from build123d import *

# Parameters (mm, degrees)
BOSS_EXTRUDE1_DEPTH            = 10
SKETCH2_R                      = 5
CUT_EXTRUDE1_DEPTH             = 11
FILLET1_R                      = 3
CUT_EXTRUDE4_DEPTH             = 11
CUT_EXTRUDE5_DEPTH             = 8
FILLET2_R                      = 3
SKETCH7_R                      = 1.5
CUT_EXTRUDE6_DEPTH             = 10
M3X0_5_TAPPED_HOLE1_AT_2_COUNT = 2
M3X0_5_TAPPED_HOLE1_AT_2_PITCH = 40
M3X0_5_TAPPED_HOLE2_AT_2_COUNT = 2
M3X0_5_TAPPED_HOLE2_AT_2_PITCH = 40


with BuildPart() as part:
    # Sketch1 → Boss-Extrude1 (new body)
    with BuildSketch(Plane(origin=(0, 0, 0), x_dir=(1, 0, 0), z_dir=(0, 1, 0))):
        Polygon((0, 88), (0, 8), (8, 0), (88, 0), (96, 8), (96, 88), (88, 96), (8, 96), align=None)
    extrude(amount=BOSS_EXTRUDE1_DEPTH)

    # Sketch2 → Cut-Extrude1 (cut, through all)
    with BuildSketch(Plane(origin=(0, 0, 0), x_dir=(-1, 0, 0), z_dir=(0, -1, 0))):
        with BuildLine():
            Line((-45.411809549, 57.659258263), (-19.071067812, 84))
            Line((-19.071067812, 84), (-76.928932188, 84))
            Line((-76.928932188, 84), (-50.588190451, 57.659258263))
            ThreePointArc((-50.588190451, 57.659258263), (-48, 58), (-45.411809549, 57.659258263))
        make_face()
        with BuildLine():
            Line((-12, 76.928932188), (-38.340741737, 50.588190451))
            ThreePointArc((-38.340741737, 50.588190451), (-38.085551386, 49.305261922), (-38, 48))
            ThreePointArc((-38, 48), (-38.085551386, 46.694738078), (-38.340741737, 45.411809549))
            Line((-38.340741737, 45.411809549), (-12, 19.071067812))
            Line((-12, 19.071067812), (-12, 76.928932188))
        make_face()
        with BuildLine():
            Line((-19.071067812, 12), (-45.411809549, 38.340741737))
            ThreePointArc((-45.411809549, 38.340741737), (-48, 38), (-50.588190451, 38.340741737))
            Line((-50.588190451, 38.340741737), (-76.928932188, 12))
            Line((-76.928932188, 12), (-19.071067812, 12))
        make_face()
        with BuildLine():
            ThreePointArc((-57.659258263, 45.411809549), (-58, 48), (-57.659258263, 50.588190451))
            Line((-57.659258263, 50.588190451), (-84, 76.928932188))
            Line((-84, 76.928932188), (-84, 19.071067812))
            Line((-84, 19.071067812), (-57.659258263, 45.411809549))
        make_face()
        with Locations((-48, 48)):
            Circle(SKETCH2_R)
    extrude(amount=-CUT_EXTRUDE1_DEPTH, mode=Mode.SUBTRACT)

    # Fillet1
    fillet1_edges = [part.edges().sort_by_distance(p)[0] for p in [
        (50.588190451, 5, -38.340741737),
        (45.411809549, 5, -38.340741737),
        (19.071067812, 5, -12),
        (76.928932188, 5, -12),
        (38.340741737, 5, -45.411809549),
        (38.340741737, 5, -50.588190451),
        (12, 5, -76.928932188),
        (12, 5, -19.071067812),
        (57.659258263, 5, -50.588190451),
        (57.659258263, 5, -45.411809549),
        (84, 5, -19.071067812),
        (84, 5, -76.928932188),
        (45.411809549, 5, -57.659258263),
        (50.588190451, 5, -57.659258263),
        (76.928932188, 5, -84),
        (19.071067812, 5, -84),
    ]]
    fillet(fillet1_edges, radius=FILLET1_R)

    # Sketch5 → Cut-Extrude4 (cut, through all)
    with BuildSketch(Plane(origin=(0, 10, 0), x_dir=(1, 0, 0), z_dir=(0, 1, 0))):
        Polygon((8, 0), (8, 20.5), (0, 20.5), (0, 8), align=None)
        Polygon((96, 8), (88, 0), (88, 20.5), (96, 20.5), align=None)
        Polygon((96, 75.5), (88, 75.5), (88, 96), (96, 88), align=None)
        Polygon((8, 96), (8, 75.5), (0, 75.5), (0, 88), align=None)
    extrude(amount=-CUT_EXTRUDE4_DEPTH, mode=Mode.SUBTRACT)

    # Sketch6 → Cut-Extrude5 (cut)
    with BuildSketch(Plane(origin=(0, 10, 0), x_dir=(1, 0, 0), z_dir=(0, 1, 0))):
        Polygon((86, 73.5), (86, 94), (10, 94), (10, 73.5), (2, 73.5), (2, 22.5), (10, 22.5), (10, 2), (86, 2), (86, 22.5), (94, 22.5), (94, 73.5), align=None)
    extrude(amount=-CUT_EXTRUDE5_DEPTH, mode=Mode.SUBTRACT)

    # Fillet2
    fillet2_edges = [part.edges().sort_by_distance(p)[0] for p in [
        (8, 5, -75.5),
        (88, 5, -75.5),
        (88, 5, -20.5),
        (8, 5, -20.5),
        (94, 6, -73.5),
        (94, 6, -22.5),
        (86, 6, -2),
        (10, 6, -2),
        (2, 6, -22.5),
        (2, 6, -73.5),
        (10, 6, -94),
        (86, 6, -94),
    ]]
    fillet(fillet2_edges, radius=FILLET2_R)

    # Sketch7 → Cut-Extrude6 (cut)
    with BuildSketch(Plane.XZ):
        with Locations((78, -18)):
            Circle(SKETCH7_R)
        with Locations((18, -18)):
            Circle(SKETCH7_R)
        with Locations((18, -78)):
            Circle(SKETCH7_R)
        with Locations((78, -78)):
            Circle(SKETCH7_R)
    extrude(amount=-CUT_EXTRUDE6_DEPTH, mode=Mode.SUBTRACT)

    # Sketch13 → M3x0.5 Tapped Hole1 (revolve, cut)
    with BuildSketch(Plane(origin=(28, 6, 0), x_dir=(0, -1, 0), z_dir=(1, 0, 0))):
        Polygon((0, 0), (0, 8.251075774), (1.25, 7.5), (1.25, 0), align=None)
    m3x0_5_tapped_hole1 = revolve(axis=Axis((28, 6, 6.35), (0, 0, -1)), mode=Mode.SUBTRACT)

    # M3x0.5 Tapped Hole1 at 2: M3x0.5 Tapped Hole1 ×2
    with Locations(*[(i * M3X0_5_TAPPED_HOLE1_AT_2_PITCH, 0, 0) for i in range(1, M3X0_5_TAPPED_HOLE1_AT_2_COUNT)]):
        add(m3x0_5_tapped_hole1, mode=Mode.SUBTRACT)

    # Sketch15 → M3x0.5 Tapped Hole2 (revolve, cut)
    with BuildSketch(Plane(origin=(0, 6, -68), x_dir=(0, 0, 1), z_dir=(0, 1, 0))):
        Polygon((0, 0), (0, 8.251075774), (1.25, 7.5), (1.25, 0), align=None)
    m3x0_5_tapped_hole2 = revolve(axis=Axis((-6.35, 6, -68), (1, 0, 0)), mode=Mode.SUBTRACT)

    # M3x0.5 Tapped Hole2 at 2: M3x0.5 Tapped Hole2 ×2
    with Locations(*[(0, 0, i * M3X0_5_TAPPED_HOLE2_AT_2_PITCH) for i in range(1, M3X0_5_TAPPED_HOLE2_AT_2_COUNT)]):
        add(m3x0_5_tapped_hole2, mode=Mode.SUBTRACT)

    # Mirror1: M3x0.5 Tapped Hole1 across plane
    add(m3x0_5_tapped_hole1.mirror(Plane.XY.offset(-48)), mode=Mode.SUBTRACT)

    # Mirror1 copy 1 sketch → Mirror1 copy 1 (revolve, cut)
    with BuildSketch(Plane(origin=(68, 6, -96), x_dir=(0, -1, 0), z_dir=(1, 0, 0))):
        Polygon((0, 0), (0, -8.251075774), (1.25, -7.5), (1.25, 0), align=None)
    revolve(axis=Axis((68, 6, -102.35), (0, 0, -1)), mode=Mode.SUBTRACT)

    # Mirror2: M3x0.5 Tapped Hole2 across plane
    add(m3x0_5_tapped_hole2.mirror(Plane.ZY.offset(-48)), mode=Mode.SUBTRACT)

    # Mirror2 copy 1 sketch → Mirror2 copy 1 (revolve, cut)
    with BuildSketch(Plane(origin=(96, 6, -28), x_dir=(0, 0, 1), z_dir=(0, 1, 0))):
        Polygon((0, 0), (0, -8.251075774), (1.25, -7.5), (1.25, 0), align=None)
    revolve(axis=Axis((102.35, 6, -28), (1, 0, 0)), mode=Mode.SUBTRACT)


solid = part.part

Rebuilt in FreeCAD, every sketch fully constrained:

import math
import FreeCAD as App
import Part
import Sketcher

V = App.Vector
Q = App.Units.Quantity


def edges_at(feature, points):
    """Names of the edges that pass closest to the given points."""
    edges = feature.Shape.Edges
    near = lambda p: min(range(len(edges)), key=lambda i: edges[i].distToShape(Part.Vertex(*p))[0])
    return sorted({f"Edge{near(p) + 1}" for p in points})

doc = App.newDocument("Part")
params = doc.addObject("Spreadsheet::Sheet", "Params")
for row, (alias, value) in enumerate([
    ("sketch1_width", "80 mm"),
    ("pad1_length", "10 mm"),
    ("sketch2_diameter", "10 mm"),
    ("sketch2_radius", "10 mm"),
    ("fillet_radius", "3 mm"),
    ("sketch3_width", "8 mm"),
    ("sketch3_height", "20.5 mm"),
    ("sketch4_width", "76 mm"),
    ("sketch4_width2", "8 mm"),
    ("sketch4_height", "51 mm"),
    ("sketch4_height2", "20.5 mm"),
    ("pocket3_length", "8 mm"),
    ("fillet2_radius", "3 mm"),
    ("sketch5_diameter", "3 mm"),
    ("pocket4_length", "10 mm"),
    ("sketch6_height", "7.5 mm"),
    ("sketch6_width", "1.25 mm"),
    ("groove_angle", "360 deg"),
    ("linearpattern_pitch", "40 mm"),
    ("sketch7_width", "7.5 mm"),
    ("sketch7_height", "1.25 mm"),
    ("groove2_angle", "360 deg"),
    ("linearpattern2_pitch", "40 mm"),
    ("sketch8_height", "7.5 mm"),
    ("sketch8_width", "1.25 mm"),
    ("groove3_angle", "360 deg"),
    ("sketch9_width", "7.5 mm"),
    ("sketch9_height", "1.25 mm"),
    ("groove4_angle", "360 deg"),
], start=1):
    params.set(f"A{row}", alias)
    params.set(f"B{row}", "=" + value)
    params.setAlias(f"B{row}", alias)

body = doc.addObject("PartDesign::Body", "Body")

# Sketch on XZ plane
sketch1 = doc.addObject("Sketcher::SketchObject", "Sketch")
body.addObject(sketch1)
sketch1.AttachmentSupport = (doc.XZ_Plane, [""])
sketch1.MapMode = "FlatFace"
sketch1.addGeometry([
    Part.LineSegment(V(0, -88, 0), V(0, -8, 0)),  # 0
    Part.LineSegment(V(0, -8, 0), V(8, 0, 0)),  # 1
    Part.LineSegment(V(8, 0, 0), V(88, 0, 0)),  # 2
    Part.LineSegment(V(88, 0, 0), V(96, -8, 0)),  # 3
    Part.LineSegment(V(96, -8, 0), V(96, -88, 0)),  # 4
    Part.LineSegment(V(96, -88, 0), V(88, -96, 0)),  # 5
    Part.LineSegment(V(88, -96, 0), V(8, -96, 0)),  # 6
    Part.LineSegment(V(8, -96, 0), V(0, -88, 0)),  # 7
], False)
sketch1.addConstraint([
    Sketcher.Constraint("Coincident", 0, 2, 1, 1),
    Sketcher.Constraint("Coincident", 1, 2, 2, 1),
    Sketcher.Constraint("Coincident", 2, 2, 3, 1),
    Sketcher.Constraint("Coincident", 3, 2, 4, 1),
    Sketcher.Constraint("Coincident", 4, 2, 5, 1),
    Sketcher.Constraint("Coincident", 5, 2, 6, 1),
    Sketcher.Constraint("Coincident", 6, 2, 7, 1),
    Sketcher.Constraint("Coincident", 7, 2, 0, 1),
    Sketcher.Constraint("Vertical", 0),
    Sketcher.Constraint("Horizontal", 2),
    Sketcher.Constraint("Vertical", 4),
    Sketcher.Constraint("Horizontal", 6),
    Sketcher.Constraint("PointOnObject", 0, 2, -2),
    Sketcher.Constraint("PointOnObject", 1, 2, -1),
    Sketcher.Constraint("Perpendicular", 1, 3),
    Sketcher.Constraint("Perpendicular", 3, 5),
    Sketcher.Constraint("Perpendicular", 5, 7),
    Sketcher.Constraint("Horizontal", 0, 2, 3, 2),
    Sketcher.Constraint("Horizontal", 4, 2, 7, 2),
    Sketcher.Constraint("Vertical", 2, 2, 5, 2),
    Sketcher.Constraint("Vertical", 1, 2, 6, 2),
    Sketcher.Constraint("Equal", 6, 0),
    Sketcher.Constraint("DistanceX", 2, 1, 2, 2, 80.0),
    Sketcher.Constraint("DistanceY", 0, 2, -1, 1, 8.0),
])
sketch1.setExpression("Constraints[22]", "Params.sketch1_width")
pad1 = doc.addObject("PartDesign::Pad", "Pad")
body.addObject(pad1)
pad1.Profile = sketch1
pad1.setExpression("Length", "Params.pad1_length")
pad1.Reversed = True

# Sketch on XZ plane
sketch2 = doc.addObject("Sketcher::SketchObject", "Sketch001")
body.addObject(sketch2)
sketch2.AttachmentSupport = (doc.XZ_Plane, [""])
sketch2.MapMode = "FlatFace"
sketch2.addGeometry([
    Part.LineSegment(V(45.41181, -57.659258, 0), V(19.071068, -84, 0)),  # 0
    Part.LineSegment(V(19.071068, -84, 0), V(76.928932, -84, 0)),  # 1
    Part.LineSegment(V(76.928932, -84, 0), V(50.58819, -57.659258, 0)),  # 2
    Part.ArcOfCircle(Part.Circle(V(48, -48, 0), V(0, 0, 1), 10), math.radians(-105), math.radians(-75)),  # 3
    Part.LineSegment(V(12, -76.928932, 0), V(38.340742, -50.58819, 0)),  # 4
    Part.ArcOfCircle(Part.Circle(V(48, -48, 0), V(0, 0, 1), 10), math.radians(180), math.radians(195)),  # 5
    Part.ArcOfCircle(Part.Circle(V(48, -48, 0), V(0, 0, 1), 10), math.radians(165), math.radians(180)),  # 6
    Part.LineSegment(V(38.340742, -45.41181, 0), V(12, -19.071068, 0)),  # 7
    Part.LineSegment(V(12, -19.071068, 0), V(12, -76.928932, 0)),  # 8
    Part.LineSegment(V(19.071068, -12, 0), V(45.41181, -38.340742, 0)),  # 9
    Part.ArcOfCircle(Part.Circle(V(48, -48, 0), V(0, 0, 1), 10), math.radians(75), math.radians(105)),  # 10
    Part.LineSegment(V(50.58819, -38.340742, 0), V(76.928932, -12, 0)),  # 11
    Part.LineSegment(V(76.928932, -12, 0), V(19.071068, -12, 0)),  # 12
    Part.ArcOfCircle(Part.Circle(V(48, -48, 0), V(0, 0, 1), 10), math.radians(-15), math.radians(15)),  # 13
    Part.LineSegment(V(57.659258, -50.58819, 0), V(84, -76.928932, 0)),  # 14
    Part.LineSegment(V(84, -76.928932, 0), V(84, -19.071068, 0)),  # 15
    Part.LineSegment(V(84, -19.071068, 0), V(57.659258, -45.41181, 0)),  # 16
    Part.Circle(V(48, -48, 0), V(0, 0, 1), 5),  # 17
], False)
sketch2.addConstraint([
    Sketcher.Constraint("Coincident", 0, 2, 1, 1),
    Sketcher.Constraint("Coincident", 1, 2, 2, 1),
    Sketcher.Constraint("Coincident", 2, 2, 3, 2),
    Sketcher.Constraint("Coincident", 3, 1, 0, 1),
    Sketcher.Constraint("Coincident", 4, 2, 5, 2),
    Sketcher.Constraint("Tangent", 5, 1, 6, 2),
    Sketcher.Constraint("Coincident", 6, 1, 7, 1),
    Sketcher.Constraint("Coincident", 7, 2, 8, 1),
    Sketcher.Constraint("Coincident", 8, 2, 4, 1),
    Sketcher.Constraint("Coincident", 9, 2, 10, 2),
    Sketcher.Constraint("Coincident", 10, 1, 11, 1),
    Sketcher.Constraint("Coincident", 11, 2, 12, 1),
    Sketcher.Constraint("Coincident", 12, 2, 9, 1),
    Sketcher.Constraint("Coincident", 13, 1, 14, 1),
    Sketcher.Constraint("Coincident", 14, 2, 15, 1),
    Sketcher.Constraint("Coincident", 15, 2, 16, 1),
    Sketcher.Constraint("Coincident", 16, 2, 13, 2),
    Sketcher.Constraint("Horizontal", 1),
    Sketcher.Constraint("Vertical", 8),
    Sketcher.Constraint("Horizontal", 12),
    Sketcher.Constraint("Vertical", 15),
    Sketcher.Constraint("Coincident", 5, 3, 3, 3),
    Sketcher.Constraint("Coincident", 10, 3, 3, 3),
    Sketcher.Constraint("Coincident", 13, 3, 3, 3),
    Sketcher.Constraint("Coincident", 17, 3, 3, 3),
    Sketcher.Constraint("Equal", 3, 5),
    Sketcher.Constraint("Equal", 5, 6),
    Sketcher.Constraint("Equal", 6, 10),
    Sketcher.Constraint("Equal", 10, 13),
    Sketcher.Constraint("Perpendicular", 0, 2),
    Sketcher.Constraint("Perpendicular", 2, 4),
    Sketcher.Constraint("Perpendicular", 4, 7),
    Sketcher.Constraint("Parallel", 7, 9),
    Sketcher.Constraint("Perpendicular", 9, 11),
    Sketcher.Constraint("Perpendicular", 11, 14),
    Sketcher.Constraint("Perpendicular", 14, 16),
    Sketcher.Constraint("Horizontal", 2, 2, 3, 1),
    Sketcher.Constraint("Horizontal", 17, 3, 5, 1),
    Sketcher.Constraint("Horizontal", 9, 2, 10, 1),
    Sketcher.Constraint("Horizontal", 4, 2, 13, 1),
    Sketcher.Constraint("Horizontal", 8, 2, 14, 2),
    Sketcher.Constraint("Horizontal", 7, 2, 15, 2),
    Sketcher.Constraint("Horizontal", 6, 1, 16, 2),
    Sketcher.Constraint("Vertical", 4, 2, 6, 1),
    Sketcher.Constraint("Vertical", 3, 1, 9, 2),
    Sketcher.Constraint("Vertical", 1, 2, 11, 2),
    Sketcher.Constraint("Equal", 12, 8),
    Sketcher.Constraint("Equal", 2, 4),
    Sketcher.Constraint("Diameter", 17, 10.0),
    Sketcher.Constraint("Radius", 3, 10.0),
    Sketcher.Constraint("DistanceX", -1, 1, 3, 3, 48.0),
    Sketcher.Constraint("DistanceY", 3, 3, -1, 1, 48.0),
    Sketcher.Constraint("DistanceY", 0, 2, -1, 1, 84.0),
    Sketcher.Constraint("DistanceX", 1, 1, 1, 2, 57.857864),
])
sketch2.setExpression("Constraints[48]", "Params.sketch2_diameter")
sketch2.setExpression("Constraints[49]", "Params.sketch2_radius")
pocket1 = doc.addObject("PartDesign::Pocket", "Pocket")
body.addObject(pocket1)
pocket1.Profile = sketch2
pocket1.Type = "ThroughAll"
doc.recompute()

fillet = doc.addObject("PartDesign::Fillet", "Fillet")
body.addObject(fillet)
fillet.Base = (pocket1, edges_at(pocket1, [
    (50.588, 5, -38.341),
    (45.412, 5, -38.341),
    (19.071, 5, -12),
    (76.929, 5, -12),
    (38.341, 5, -45.412),
    (38.341, 5, -50.588),
    (12, 5, -76.929),
    (12, 5, -19.071),
    (57.659, 5, -50.588),
    (57.659, 5, -45.412),
    (84, 5, -19.071),
    (84, 5, -76.929),
    (45.412, 5, -57.659),
    (50.588, 5, -57.659),
    (76.929, 5, -84),
    (19.071, 5, -84),
]))
fillet.setExpression("Radius", "Params.fillet_radius")

# Sketch on XZ plane
sketch3 = doc.addObject("Sketcher::SketchObject", "Sketch002")
body.addObject(sketch3)
sketch3.AttachmentSupport = (doc.XZ_Plane, [""])
sketch3.MapMode = "FlatFace"
sketch3.AttachmentOffset = App.Placement(V(0, 0, -10), App.Rotation())
sketch3.addGeometry([
    Part.LineSegment(V(8, 0, 0), V(8, -20.5, 0)),  # 0
    Part.LineSegment(V(8, -20.5, 0), V(0, -20.5, 0)),  # 1
    Part.LineSegment(V(0, -20.5, 0), V(0, -8, 0)),  # 2
    Part.LineSegment(V(0, -8, 0), V(8, 0, 0)),  # 3
    Part.LineSegment(V(88, 0, 0), V(96, -8, 0)),  # 4
    Part.LineSegment(V(96, -8, 0), V(96, -20.5, 0)),  # 5
    Part.LineSegment(V(96, -20.5, 0), V(88, -20.5, 0)),  # 6
    Part.LineSegment(V(88, -20.5, 0), V(88, 0, 0)),  # 7
    Part.LineSegment(V(88, -75.5, 0), V(96, -75.5, 0)),  # 8
    Part.LineSegment(V(96, -75.5, 0), V(96, -88, 0)),  # 9
    Part.LineSegment(V(96, -88, 0), V(88, -96, 0)),  # 10
    Part.LineSegment(V(88, -96, 0), V(88, -75.5, 0)),  # 11
    Part.LineSegment(V(8, -75.5, 0), V(8, -96, 0)),  # 12
    Part.LineSegment(V(8, -96, 0), V(0, -88, 0)),  # 13
    Part.LineSegment(V(0, -88, 0), V(0, -75.5, 0)),  # 14
    Part.LineSegment(V(0, -75.5, 0), V(8, -75.5, 0)),  # 15
], False)
sketch3.addConstraint([
    Sketcher.Constraint("Coincident", 0, 2, 1, 1),
    Sketcher.Constraint("Coincident", 1, 2, 2, 1),
    Sketcher.Constraint("Coincident", 2, 2, 3, 1),
    Sketcher.Constraint("Coincident", 3, 2, 0, 1),
    Sketcher.Constraint("Coincident", 4, 2, 5, 1),
    Sketcher.Constraint("Coincident", 5, 2, 6, 1),
    Sketcher.Constraint("Coincident", 6, 2, 7, 1),
    Sketcher.Constraint("Coincident", 7, 2, 4, 1),
    Sketcher.Constraint("Coincident", 8, 2, 9, 1),
    Sketcher.Constraint("Coincident", 9, 2, 10, 1),
    Sketcher.Constraint("Coincident", 10, 2, 11, 1),
    Sketcher.Constraint("Coincident", 11, 2, 8, 1),
    Sketcher.Constraint("Coincident", 12, 2, 13, 1),
    Sketcher.Constraint("Coincident", 13, 2, 14, 1),
    Sketcher.Constraint("Coincident", 14, 2, 15, 1),
    Sketcher.Constraint("Coincident", 15, 2, 12, 1),
    Sketcher.Constraint("Vertical", 0),
    Sketcher.Constraint("Horizontal", 1),
    Sketcher.Constraint("Vertical", 2),
    Sketcher.Constraint("Vertical", 5),
    Sketcher.Constraint("Horizontal", 6),
    Sketcher.Constraint("Vertical", 7),
    Sketcher.Constraint("Horizontal", 8),
    Sketcher.Constraint("Vertical", 9),
    Sketcher.Constraint("Vertical", 11),
    Sketcher.Constraint("Vertical", 12),
    Sketcher.Constraint("Vertical", 14),
    Sketcher.Constraint("Horizontal", 15),
    Sketcher.Constraint("PointOnObject", 1, 2, -2),
    Sketcher.Constraint("PointOnObject", 3, 2, -1),
    Sketcher.Constraint("PointOnObject", 7, 2, -1),
    Sketcher.Constraint("PointOnObject", 13, 2, -2),
    Sketcher.Constraint("Perpendicular", 3, 4),
    Sketcher.Constraint("Perpendicular", 4, 10),
    Sketcher.Constraint("Perpendicular", 10, 13),
    Sketcher.Constraint("Horizontal", 2, 2, 4, 2),
    Sketcher.Constraint("Horizontal", 1, 2, 5, 2),
    Sketcher.Constraint("Horizontal", 10, 2, 12, 2),
    Sketcher.Constraint("Horizontal", 9, 2, 13, 2),
    Sketcher.Constraint("Horizontal", 11, 2, 14, 2),
    Sketcher.Constraint("Vertical", 5, 2, 8, 2),
    Sketcher.Constraint("Vertical", 7, 2, 10, 2),
    Sketcher.Constraint("Vertical", 3, 2, 12, 2),
    Sketcher.Constraint("Equal", 5, 9),
    Sketcher.Constraint("DistanceX", 1, 2, 1, 1, 8.0),
    Sketcher.Constraint("DistanceY", 0, 2, 0, 1, 20.5),
    Sketcher.Constraint("DistanceX", -1, 1, 4, 2, 96.0),
    Sketcher.Constraint("DistanceY", 9, 2, -1, 1, 88.0),
])
sketch3.setExpression("Constraints[44]", "Params.sketch3_width")
sketch3.setExpression("Constraints[45]", "Params.sketch3_height")
pocket2 = doc.addObject("PartDesign::Pocket", "Pocket001")
body.addObject(pocket2)
pocket2.Profile = sketch3
pocket2.Type = "ThroughAll"
pocket2.Reversed = True

# Sketch on XZ plane
sketch4 = doc.addObject("Sketcher::SketchObject", "Sketch003")
body.addObject(sketch4)
sketch4.AttachmentSupport = (doc.XZ_Plane, [""])
sketch4.MapMode = "FlatFace"
sketch4.AttachmentOffset = App.Placement(V(0, 0, -10), App.Rotation())
sketch4.addGeometry([
    Part.LineSegment(V(86, -73.5, 0), V(86, -94, 0)),  # 0
    Part.LineSegment(V(86, -94, 0), V(10, -94, 0)),  # 1
    Part.LineSegment(V(10, -94, 0), V(10, -73.5, 0)),  # 2
    Part.LineSegment(V(10, -73.5, 0), V(2, -73.5, 0)),  # 3
    Part.LineSegment(V(2, -73.5, 0), V(2, -22.5, 0)),  # 4
    Part.LineSegment(V(2, -22.5, 0), V(10, -22.5, 0)),  # 5
    Part.LineSegment(V(10, -22.5, 0), V(10, -2, 0)),  # 6
    Part.LineSegment(V(10, -2, 0), V(86, -2, 0)),  # 7
    Part.LineSegment(V(86, -2, 0), V(86, -22.5, 0)),  # 8
    Part.LineSegment(V(86, -22.5, 0), V(94, -22.5, 0)),  # 9
    Part.LineSegment(V(94, -22.5, 0), V(94, -73.5, 0)),  # 10
    Part.LineSegment(V(94, -73.5, 0), V(86, -73.5, 0)),  # 11
], False)
sketch4.addConstraint([
    Sketcher.Constraint("Coincident", 0, 2, 1, 1),
    Sketcher.Constraint("Coincident", 1, 2, 2, 1),
    Sketcher.Constraint("Coincident", 2, 2, 3, 1),
    Sketcher.Constraint("Coincident", 3, 2, 4, 1),
    Sketcher.Constraint("Coincident", 4, 2, 5, 1),
    Sketcher.Constraint("Coincident", 5, 2, 6, 1),
    Sketcher.Constraint("Coincident", 6, 2, 7, 1),
    Sketcher.Constraint("Coincident", 7, 2, 8, 1),
    Sketcher.Constraint("Coincident", 8, 2, 9, 1),
    Sketcher.Constraint("Coincident", 9, 2, 10, 1),
    Sketcher.Constraint("Coincident", 10, 2, 11, 1),
    Sketcher.Constraint("Coincident", 11, 2, 0, 1),
    Sketcher.Constraint("Vertical", 0),
    Sketcher.Constraint("Horizontal", 1),
    Sketcher.Constraint("Vertical", 2),
    Sketcher.Constraint("Horizontal", 3),
    Sketcher.Constraint("Vertical", 4),
    Sketcher.Constraint("Horizontal", 5),
    Sketcher.Constraint("Vertical", 6),
    Sketcher.Constraint("Horizontal", 7),
    Sketcher.Constraint("Vertical", 8),
    Sketcher.Constraint("Horizontal", 9),
    Sketcher.Constraint("Vertical", 10),
    Sketcher.Constraint("Horizontal", 11),
    Sketcher.Constraint("Horizontal", 5, 2, 8, 2),
    Sketcher.Constraint("Horizontal", 3, 2, 10, 2),
    Sketcher.Constraint("Vertical", 2, 2, 5, 2),
    Sketcher.Constraint("Vertical", 0, 2, 7, 2),
    Sketcher.Constraint("Equal", 5, 9),
    Sketcher.Constraint("Equal", 2, 6),
    Sketcher.Constraint("DistanceX", 1, 2, 1, 1, 76.0),
    Sketcher.Constraint("DistanceX", 3, 2, 3, 1, 8.0),
    Sketcher.Constraint("DistanceY", 4, 1, 4, 2, 51.0),
    Sketcher.Constraint("DistanceY", 0, 2, 0, 1, 20.5),
    Sketcher.Constraint("DistanceX", -1, 1, 0, 2, 86.0),
    Sketcher.Constraint("DistanceY", 0, 2, -1, 1, 94.0),
])
sketch4.setExpression("Constraints[30]", "Params.sketch4_width")
sketch4.setExpression("Constraints[31]", "Params.sketch4_width2")
sketch4.setExpression("Constraints[32]", "Params.sketch4_height")
sketch4.setExpression("Constraints[33]", "Params.sketch4_height2")
pocket3 = doc.addObject("PartDesign::Pocket", "Pocket002")
body.addObject(pocket3)
pocket3.Profile = sketch4
pocket3.setExpression("Length", "Params.pocket3_length")
pocket3.Reversed = True
doc.recompute()

fillet2 = doc.addObject("PartDesign::Fillet", "Fillet001")
body.addObject(fillet2)
fillet2.Base = (pocket3, edges_at(pocket3, [
    (8, 5, -75.5),
    (88, 5, -75.5),
    (88, 5, -20.5),
    (8, 5, -20.5),
    (94, 6, -73.5),
    (94, 6, -22.5),
    (86, 6, -2),
    (10, 6, -2),
    (2, 6, -22.5),
    (2, 6, -73.5),
    (10, 6, -94),
    (86, 6, -94),
]))
fillet2.setExpression("Radius", "Params.fillet2_radius")

# Sketch on XZ plane
sketch5 = doc.addObject("Sketcher::SketchObject", "Sketch004")
body.addObject(sketch5)
sketch5.AttachmentSupport = (doc.XZ_Plane, [""])
sketch5.MapMode = "FlatFace"
sketch5.addGeometry([
    Part.Circle(V(78, -18, 0), V(0, 0, 1), 1.5),
    Part.Circle(V(18, -18, 0), V(0, 0, 1), 1.5),
    Part.Circle(V(18, -78, 0), V(0, 0, 1), 1.5),
    Part.Circle(V(78, -78, 0), V(0, 0, 1), 1.5),
], False)
sketch5.addConstraint([
    Sketcher.Constraint("Equal", 0, 1),
    Sketcher.Constraint("Equal", 1, 2),
    Sketcher.Constraint("Equal", 2, 3),
    Sketcher.Constraint("Horizontal", 0, 3, 1, 3),
    Sketcher.Constraint("Horizontal", 2, 3, 3, 3),
    Sketcher.Constraint("Vertical", 1, 3, 2, 3),
    Sketcher.Constraint("Vertical", 0, 3, 3, 3),
    Sketcher.Constraint("Diameter", 0, 3.0),
    Sketcher.Constraint("DistanceX", -1, 1, 0, 3, 78.0),
    Sketcher.Constraint("DistanceY", 0, 3, -1, 1, 18.0),
    Sketcher.Constraint("DistanceX", -1, 1, 1, 3, 18.0),
    Sketcher.Constraint("DistanceY", 2, 3, -1, 1, 78.0),
])
sketch5.setExpression("Constraints[7]", "Params.sketch5_diameter")
pocket4 = doc.addObject("PartDesign::Pocket", "Pocket003")
body.addObject(pocket4)
pocket4.Profile = sketch5
pocket4.setExpression("Length", "Params.pocket4_length")

# Sketch on YZ plane
sketch6 = doc.addObject("Sketcher::SketchObject", "Sketch005")
body.addObject(sketch6)
sketch6.AttachmentSupport = (doc.YZ_Plane, [""])
sketch6.MapMode = "FlatFace"
sketch6.AttachmentOffset = App.Placement(V(0, 0, 28), App.Rotation())
sketch6.addGeometry([
    Part.LineSegment(V(6, -8.251076, 0), V(6, 0, 0)),
    Part.LineSegment(V(6, 0, 0), V(4.75, 0, 0)),
    Part.LineSegment(V(4.75, 0, 0), V(4.75, -7.5, 0)),
    Part.LineSegment(V(4.75, -7.5, 0), V(6, -8.251076, 0)),
], False)
sketch6.addGeometry(Part.LineSegment(V(6, 0, 0), V(6, -8.251076, 0)), True)  # axis
sketch6.addConstraint([
    Sketcher.Constraint("Coincident", 0, 2, 1, 1),
    Sketcher.Constraint("Coincident", 1, 2, 2, 1),
    Sketcher.Constraint("Coincident", 2, 2, 3, 1),
    Sketcher.Constraint("Coincident", 3, 2, 0, 1),
    Sketcher.Constraint("Vertical", 0),
    Sketcher.Constraint("Horizontal", 1),
    Sketcher.Constraint("Vertical", 2),
    Sketcher.Constraint("Vertical", 4),
    Sketcher.Constraint("Coincident", 4, 1, 0, 2),
    Sketcher.Constraint("PointOnObject", 0, 2, -1),
    Sketcher.Constraint("Equal", 0, 4),
    Sketcher.Constraint("Angle", 3, Q("-31 deg")),
    Sketcher.Constraint("DistanceY", 2, 2, 2, 1, 7.5),
    Sketcher.Constraint("DistanceX", -1, 1, 0, 2, 6.0),
    Sketcher.Constraint("DistanceX", 1, 2, 1, 1, 1.25),
])
sketch6.setExpression("Constraints[12]", "Params.sketch6_height")
sketch6.setExpression("Constraints[14]", "Params.sketch6_width")
groove = doc.addObject("PartDesign::Groove", "Groove")
body.addObject(groove)
groove.Profile = sketch6
groove.ReferenceAxis = (sketch6, ["Axis0"])
groove.setExpression("Angle", "Params.groove_angle")
doc.recompute()

linearpattern = doc.addObject("PartDesign::LinearPattern", "LinearPattern")
body.addObject(linearpattern)
linearpattern.Originals = [groove]
linearpattern.Direction = (doc.X_Axis, [""])
linearpattern.Mode = "offset"
linearpattern.setExpression("Offset", "Params.linearpattern_pitch")
linearpattern.Occurrences = 2
body.Tip = linearpattern

# Sketch on XZ plane
sketch7 = doc.addObject("Sketcher::SketchObject", "Sketch006")
body.addObject(sketch7)
sketch7.AttachmentSupport = (doc.XZ_Plane, [""])
sketch7.MapMode = "FlatFace"
sketch7.AttachmentOffset = App.Placement(V(0, 0, -6), App.Rotation())
sketch7.addGeometry([
    Part.LineSegment(V(8.251076, -68, 0), V(0, -68, 0)),
    Part.LineSegment(V(0, -68, 0), V(0, -66.75, 0)),
    Part.LineSegment(V(0, -66.75, 0), V(7.5, -66.75, 0)),
    Part.LineSegment(V(7.5, -66.75, 0), V(8.251076, -68, 0)),
], False)
sketch7.addGeometry(Part.LineSegment(V(0, -68, 0), V(8.251076, -68, 0)), True)  # axis
sketch7.addConstraint([
    Sketcher.Constraint("Coincident", 0, 2, 1, 1),
    Sketcher.Constraint("Coincident", 1, 2, 2, 1),
    Sketcher.Constraint("Coincident", 2, 2, 3, 1),
    Sketcher.Constraint("Coincident", 3, 2, 0, 1),
    Sketcher.Constraint("Horizontal", 0),
    Sketcher.Constraint("Vertical", 1),
    Sketcher.Constraint("Horizontal", 2),
    Sketcher.Constraint("Horizontal", 4),
    Sketcher.Constraint("Coincident", 4, 1, 0, 2),
    Sketcher.Constraint("PointOnObject", 0, 2, -2),
    Sketcher.Constraint("Equal", 0, 4),
    Sketcher.Constraint("Angle", 3, Q("-59 deg")),
    Sketcher.Constraint("DistanceX", 2, 1, 2, 2, 7.5),
    Sketcher.Constraint("DistanceY", 0, 2, -1, 1, 68.0),
    Sketcher.Constraint("DistanceY", 1, 1, 1, 2, 1.25),
])
sketch7.setExpression("Constraints[12]", "Params.sketch7_width")
sketch7.setExpression("Constraints[14]", "Params.sketch7_height")
groove2 = doc.addObject("PartDesign::Groove", "Groove001")
body.addObject(groove2)
groove2.Profile = sketch7
groove2.ReferenceAxis = (sketch7, ["Axis0"])
groove2.setExpression("Angle", "Params.groove2_angle")
doc.recompute()

linearpattern2 = doc.addObject("PartDesign::LinearPattern", "LinearPattern001")
body.addObject(linearpattern2)
linearpattern2.Originals = [groove2]
linearpattern2.Direction = (doc.Z_Axis, [""])
linearpattern2.Mode = "offset"
linearpattern2.setExpression("Offset", "Params.linearpattern2_pitch")
linearpattern2.Occurrences = 2
body.Tip = linearpattern2
doc.recompute()

datumplane = doc.addObject("PartDesign::Plane", "DatumPlane")
body.addObject(datumplane)
datumplane.AttachmentSupport = (doc.XY_Plane, [""])
datumplane.MapMode = "FlatFace"
datumplane.AttachmentOffset = App.Placement(V(0, 0, -48), App.Rotation())
mirrored = doc.addObject("PartDesign::Mirrored", "Mirrored")
body.addObject(mirrored)
mirrored.Originals = [groove]
mirrored.MirrorPlane = (datumplane, [""])
body.Tip = mirrored

# Sketch on YZ plane
sketch8 = doc.addObject("Sketcher::SketchObject", "Sketch007")
body.addObject(sketch8)
sketch8.AttachmentSupport = (doc.YZ_Plane, [""])
sketch8.MapMode = "FlatFace"
sketch8.AttachmentOffset = App.Placement(V(0, 0, 68), App.Rotation())
sketch8.addGeometry([
    Part.LineSegment(V(6, -96, 0), V(6, -87.748924, 0)),
    Part.LineSegment(V(6, -87.748924, 0), V(4.75, -88.5, 0)),
    Part.LineSegment(V(4.75, -88.5, 0), V(4.75, -96, 0)),
    Part.LineSegment(V(4.75, -96, 0), V(6, -96, 0)),
], False)
sketch8.addGeometry(Part.LineSegment(V(6, -87.748924, 0), V(6, -96, 0)), True)  # axis
sketch8.addConstraint([
    Sketcher.Constraint("Coincident", 0, 2, 1, 1),
    Sketcher.Constraint("Coincident", 1, 2, 2, 1),
    Sketcher.Constraint("Coincident", 2, 2, 3, 1),
    Sketcher.Constraint("Coincident", 3, 2, 0, 1),
    Sketcher.Constraint("Vertical", 0),
    Sketcher.Constraint("Vertical", 2),
    Sketcher.Constraint("Horizontal", 3),
    Sketcher.Constraint("Vertical", 4),
    Sketcher.Constraint("Coincident", 4, 1, 0, 2),
    Sketcher.Constraint("Horizontal", 2, 2, 4, 2),
    Sketcher.Constraint("Angle", 1, Q("-149 deg")),
    Sketcher.Constraint("DistanceY", 2, 2, 2, 1, 7.5),
    Sketcher.Constraint("DistanceX", -1, 1, 0, 2, 6.0),
    Sketcher.Constraint("DistanceY", 2, 2, -1, 1, 96.0),
    Sketcher.Constraint("DistanceX", 3, 1, 3, 2, 1.25),
])
sketch8.setExpression("Constraints[11]", "Params.sketch8_height")
sketch8.setExpression("Constraints[14]", "Params.sketch8_width")
groove3 = doc.addObject("PartDesign::Groove", "Groove002")
body.addObject(groove3)
groove3.Profile = sketch8
groove3.ReferenceAxis = (sketch8, ["Axis0"])
groove3.setExpression("Angle", "Params.groove3_angle")
doc.recompute()

datumplane2 = doc.addObject("PartDesign::Plane", "DatumPlane001")
body.addObject(datumplane2)
datumplane2.AttachmentSupport = (doc.YZ_Plane, [""])
datumplane2.MapMode = "FlatFace"
datumplane2.AttachmentOffset = App.Placement(V(0, 0, 48), App.Rotation())
mirrored2 = doc.addObject("PartDesign::Mirrored", "Mirrored001")
body.addObject(mirrored2)
mirrored2.Originals = [groove2]
mirrored2.MirrorPlane = (datumplane2, [""])
body.Tip = mirrored2

# Sketch on XZ plane
sketch9 = doc.addObject("Sketcher::SketchObject", "Sketch008")
body.addObject(sketch9)
sketch9.AttachmentSupport = (doc.XZ_Plane, [""])
sketch9.MapMode = "FlatFace"
sketch9.AttachmentOffset = App.Placement(V(0, 0, -6), App.Rotation())
sketch9.addGeometry([
    Part.LineSegment(V(96, -28, 0), V(87.748924, -28, 0)),
    Part.LineSegment(V(87.748924, -28, 0), V(88.5, -26.75, 0)),
    Part.LineSegment(V(88.5, -26.75, 0), V(96, -26.75, 0)),
    Part.LineSegment(V(96, -26.75, 0), V(96, -28, 0)),
], False)
sketch9.addGeometry(Part.LineSegment(V(87.748924, -28, 0), V(96, -28, 0)), True)  # axis
sketch9.addConstraint([
    Sketcher.Constraint("Coincident", 0, 2, 1, 1),
    Sketcher.Constraint("Coincident", 1, 2, 2, 1),
    Sketcher.Constraint("Coincident", 2, 2, 3, 1),
    Sketcher.Constraint("Coincident", 3, 2, 0, 1),
    Sketcher.Constraint("Horizontal", 0),
    Sketcher.Constraint("Horizontal", 2),
    Sketcher.Constraint("Vertical", 3),
    Sketcher.Constraint("Horizontal", 4),
    Sketcher.Constraint("Coincident", 4, 1, 0, 2),
    Sketcher.Constraint("Vertical", 2, 2, 4, 2),
    Sketcher.Constraint("Angle", 1, Q("59 deg")),
    Sketcher.Constraint("DistanceX", 2, 1, 2, 2, 7.5),
    Sketcher.Constraint("DistanceY", 0, 2, -1, 1, 28.0),
    Sketcher.Constraint("DistanceX", -1, 1, 2, 2, 96.0),
    Sketcher.Constraint("DistanceY", 3, 2, 3, 1, 1.25),
])
sketch9.setExpression("Constraints[11]", "Params.sketch9_width")
sketch9.setExpression("Constraints[14]", "Params.sketch9_height")
groove4 = doc.addObject("PartDesign::Groove", "Groove003")
body.addObject(groove4)
groove4.Profile = sketch9
groove4.ReferenceAxis = (sketch9, ["Axis0"])
groove4.setExpression("Angle", "Params.groove4_angle")

doc.recompute()
